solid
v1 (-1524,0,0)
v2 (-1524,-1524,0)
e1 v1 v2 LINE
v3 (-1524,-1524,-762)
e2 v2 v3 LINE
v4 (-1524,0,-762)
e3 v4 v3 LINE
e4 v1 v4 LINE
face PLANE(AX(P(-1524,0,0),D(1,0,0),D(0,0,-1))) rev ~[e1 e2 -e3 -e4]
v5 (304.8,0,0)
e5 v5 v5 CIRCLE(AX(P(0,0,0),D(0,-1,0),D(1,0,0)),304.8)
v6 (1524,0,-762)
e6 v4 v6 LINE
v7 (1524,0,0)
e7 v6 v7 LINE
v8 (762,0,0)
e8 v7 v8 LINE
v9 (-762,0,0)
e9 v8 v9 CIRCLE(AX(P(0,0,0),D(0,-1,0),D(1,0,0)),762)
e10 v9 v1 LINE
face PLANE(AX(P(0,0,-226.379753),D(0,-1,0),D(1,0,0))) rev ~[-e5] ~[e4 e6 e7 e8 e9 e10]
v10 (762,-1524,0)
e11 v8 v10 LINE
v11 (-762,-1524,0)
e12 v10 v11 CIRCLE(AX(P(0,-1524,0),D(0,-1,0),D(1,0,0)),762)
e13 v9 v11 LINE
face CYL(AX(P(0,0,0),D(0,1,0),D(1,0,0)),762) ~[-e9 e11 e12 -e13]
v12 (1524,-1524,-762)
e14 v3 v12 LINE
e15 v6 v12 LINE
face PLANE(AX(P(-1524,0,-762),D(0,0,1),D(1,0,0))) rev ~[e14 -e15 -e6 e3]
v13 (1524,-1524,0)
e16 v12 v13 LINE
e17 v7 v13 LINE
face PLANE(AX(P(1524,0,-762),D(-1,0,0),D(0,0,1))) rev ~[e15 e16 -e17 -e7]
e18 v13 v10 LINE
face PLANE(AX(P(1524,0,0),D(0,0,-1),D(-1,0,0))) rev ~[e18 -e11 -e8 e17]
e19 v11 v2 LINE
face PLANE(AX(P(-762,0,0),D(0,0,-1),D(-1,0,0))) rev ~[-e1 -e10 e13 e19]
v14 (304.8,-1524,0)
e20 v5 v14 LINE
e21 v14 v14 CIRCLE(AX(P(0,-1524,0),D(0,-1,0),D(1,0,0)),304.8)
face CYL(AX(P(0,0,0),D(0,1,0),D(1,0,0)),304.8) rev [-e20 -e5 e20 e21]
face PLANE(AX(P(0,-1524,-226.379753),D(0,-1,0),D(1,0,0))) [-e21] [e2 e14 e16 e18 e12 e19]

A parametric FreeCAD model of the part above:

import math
import FreeCAD as App
import Part
import Sketcher

V = App.Vector
Q = App.Units.Quantity

doc = App.newDocument("Part")
body = doc.addObject("PartDesign::Body", "Body")

# Sketch on XZ plane
sketch1 = doc.addObject("Sketcher::SketchObject", "Sketch")
body.addObject(sketch1)
sketch1.AttachmentSupport = (doc.XZ_Plane, [""])
sketch1.MapMode = "FlatFace"
sketch1.addGeometry([
    Part.LineSegment(V(1524, 0, 0), V(762, 0, 0)),  # 0
    Part.ArcOfCircle(Part.Circle(V(0, 0, 0), V(0, 0, 1), 762), math.radians(0), math.radians(180)),  # 1
    Part.LineSegment(V(-762, 0, 0), V(-1524, 0, 0)),  # 2
    Part.LineSegment(V(-1524, 0, 0), V(-1524, -762, 0)),  # 3
    Part.LineSegment(V(-1524, -762, 0), V(1524, -762, 0)),  # 4
    Part.LineSegment(V(1524, -762, 0), V(1524, 0, 0)),  # 5
    Part.Circle(V(0, 0, 0), V(0, 0, 1), 305),  # 6
], False)
sketch1.addConstraint([
    Sketcher.Constraint("Coincident", 0, 2, 1, 1),
    Sketcher.Constraint("Coincident", 1, 2, 2, 1),
    Sketcher.Constraint("Coincident", 2, 2, 3, 1),
    Sketcher.Constraint("Coincident", 3, 2, 4, 1),
    Sketcher.Constraint("Coincident", 4, 2, 5, 1),
    Sketcher.Constraint("Coincident", 5, 2, 0, 1),
    Sketcher.Constraint("Horizontal", 0),
    Sketcher.Constraint("Horizontal", 2),
    Sketcher.Constraint("Vertical", 3),
    Sketcher.Constraint("Horizontal", 4),
    Sketcher.Constraint("Vertical", 5),
    Sketcher.Constraint("Coincident", 1, 3, -1, 1),
    Sketcher.Constraint("Coincident", 6, 3, -1, 1),
    Sketcher.Constraint("Symmetric", 2, 2, 5, 2, -1, 1),
    Sketcher.Constraint("PointOnObject", 0, 2, -1),
    Sketcher.Constraint("Equal", 2, 3),
    Sketcher.Constraint("Diameter", 6, Q("24 in")),
    Sketcher.Constraint("Radius", 1, Q("30 in")),
    Sketcher.Constraint("DistanceX", 0, 2, 0, 1, Q("30 in")),
])
pad1 = doc.addObject("PartDesign::Pad", "Pad")
body.addObject(pad1)
pad1.Profile = sketch1
pad1.Length = Q("60 in")

doc.recompute()
